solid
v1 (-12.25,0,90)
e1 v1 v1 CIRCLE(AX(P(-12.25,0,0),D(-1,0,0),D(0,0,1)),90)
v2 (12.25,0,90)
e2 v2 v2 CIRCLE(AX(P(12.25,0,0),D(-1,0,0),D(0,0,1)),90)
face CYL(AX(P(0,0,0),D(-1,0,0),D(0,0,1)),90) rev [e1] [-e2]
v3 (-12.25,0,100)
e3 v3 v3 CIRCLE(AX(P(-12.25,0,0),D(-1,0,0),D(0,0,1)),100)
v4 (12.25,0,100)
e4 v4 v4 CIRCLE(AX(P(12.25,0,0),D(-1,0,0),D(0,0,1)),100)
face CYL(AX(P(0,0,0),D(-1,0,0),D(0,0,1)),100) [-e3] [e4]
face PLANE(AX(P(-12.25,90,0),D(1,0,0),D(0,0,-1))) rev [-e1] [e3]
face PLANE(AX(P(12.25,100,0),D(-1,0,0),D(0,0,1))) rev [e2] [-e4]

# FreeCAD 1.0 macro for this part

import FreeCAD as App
import Part
import Sketcher
Q = App.Units.Quantity

doc = App.newDocument("Part")
params = doc.addObject("Spreadsheet::Sheet", "Params")
for row, (alias, value) in enumerate([
    ("sketch1_height", "10 mm"),
    ("sketch1_width", "24.5 mm"),
    ("revolution_angle", "360 deg"),
], start=1):
    params.set(f"A{row}", alias)
    params.set(f"B{row}", "=" + value)
    params.setAlias(f"B{row}", alias)

body = doc.addObject("PartDesign::Body", "Body")

sketch1 = body.newObject("Sketcher::SketchObject", "Sketch")
sketch1.AttachmentSupport = (doc.getObject("XY_Plane"), [""])
sketch1.MapMode = "FlatFace"
sketch1.addGeometry(Part.LineSegment(App.Vector(12, 90, 0), App.Vector(12, 100, 0)), False)
sketch1.addGeometry(Part.LineSegment(App.Vector(12, 100, 0), App.Vector(-12, 100, 0)), False)
sketch1.addGeometry(Part.LineSegment(App.Vector(-12, 100, 0), App.Vector(-12, 90, 0)), False)
sketch1.addGeometry(Part.LineSegment(App.Vector(-12, 90, 0), App.Vector(12, 90, 0)), False)
sketch1.addConstraint(Sketcher.Constraint("Coincident", 0, 2, 1, 1))
sketch1.addConstraint(Sketcher.Constraint("Coincident", 1, 2, 2, 1))
sketch1.addConstraint(Sketcher.Constraint("Coincident", 2, 2, 3, 1))
sketch1.addConstraint(Sketcher.Constraint("Coincident", 3, 2, 0, 1))
sketch1.addConstraint(Sketcher.Constraint("Vertical", 0))
sketch1.addConstraint(Sketcher.Constraint("Horizontal", 1))
sketch1.addConstraint(Sketcher.Constraint("Vertical", 2))
sketch1.addConstraint(Sketcher.Constraint("Horizontal", 3))
sketch1.addConstraint(Sketcher.Constraint("DistanceY", 0, 1, 0, 2, Q("10 mm")))
sketch1.addConstraint(Sketcher.Constraint("DistanceX", 1, 2, 1, 1, Q("24.5 mm")))
sketch1.addConstraint(Sketcher.Constraint("DistanceY", -1, 1, 0, 2, Q("100 mm")))
sketch1.addConstraint(Sketcher.Constraint("DistanceX", -1, 1, 0, 2, Q("12.25 mm")))
sketch1.setExpression("Constraints[8]", "Params.sketch1_height")
sketch1.setExpression("Constraints[9]", "Params.sketch1_width")
revolution = body.newObject("PartDesign::Revolution", "Revolution")
revolution.Profile = sketch1
revolution.ReferenceAxis = (sketch1, ["H_Axis"])
revolution.setExpression("Angle", "Params.revolution_angle")

doc.recompute()
